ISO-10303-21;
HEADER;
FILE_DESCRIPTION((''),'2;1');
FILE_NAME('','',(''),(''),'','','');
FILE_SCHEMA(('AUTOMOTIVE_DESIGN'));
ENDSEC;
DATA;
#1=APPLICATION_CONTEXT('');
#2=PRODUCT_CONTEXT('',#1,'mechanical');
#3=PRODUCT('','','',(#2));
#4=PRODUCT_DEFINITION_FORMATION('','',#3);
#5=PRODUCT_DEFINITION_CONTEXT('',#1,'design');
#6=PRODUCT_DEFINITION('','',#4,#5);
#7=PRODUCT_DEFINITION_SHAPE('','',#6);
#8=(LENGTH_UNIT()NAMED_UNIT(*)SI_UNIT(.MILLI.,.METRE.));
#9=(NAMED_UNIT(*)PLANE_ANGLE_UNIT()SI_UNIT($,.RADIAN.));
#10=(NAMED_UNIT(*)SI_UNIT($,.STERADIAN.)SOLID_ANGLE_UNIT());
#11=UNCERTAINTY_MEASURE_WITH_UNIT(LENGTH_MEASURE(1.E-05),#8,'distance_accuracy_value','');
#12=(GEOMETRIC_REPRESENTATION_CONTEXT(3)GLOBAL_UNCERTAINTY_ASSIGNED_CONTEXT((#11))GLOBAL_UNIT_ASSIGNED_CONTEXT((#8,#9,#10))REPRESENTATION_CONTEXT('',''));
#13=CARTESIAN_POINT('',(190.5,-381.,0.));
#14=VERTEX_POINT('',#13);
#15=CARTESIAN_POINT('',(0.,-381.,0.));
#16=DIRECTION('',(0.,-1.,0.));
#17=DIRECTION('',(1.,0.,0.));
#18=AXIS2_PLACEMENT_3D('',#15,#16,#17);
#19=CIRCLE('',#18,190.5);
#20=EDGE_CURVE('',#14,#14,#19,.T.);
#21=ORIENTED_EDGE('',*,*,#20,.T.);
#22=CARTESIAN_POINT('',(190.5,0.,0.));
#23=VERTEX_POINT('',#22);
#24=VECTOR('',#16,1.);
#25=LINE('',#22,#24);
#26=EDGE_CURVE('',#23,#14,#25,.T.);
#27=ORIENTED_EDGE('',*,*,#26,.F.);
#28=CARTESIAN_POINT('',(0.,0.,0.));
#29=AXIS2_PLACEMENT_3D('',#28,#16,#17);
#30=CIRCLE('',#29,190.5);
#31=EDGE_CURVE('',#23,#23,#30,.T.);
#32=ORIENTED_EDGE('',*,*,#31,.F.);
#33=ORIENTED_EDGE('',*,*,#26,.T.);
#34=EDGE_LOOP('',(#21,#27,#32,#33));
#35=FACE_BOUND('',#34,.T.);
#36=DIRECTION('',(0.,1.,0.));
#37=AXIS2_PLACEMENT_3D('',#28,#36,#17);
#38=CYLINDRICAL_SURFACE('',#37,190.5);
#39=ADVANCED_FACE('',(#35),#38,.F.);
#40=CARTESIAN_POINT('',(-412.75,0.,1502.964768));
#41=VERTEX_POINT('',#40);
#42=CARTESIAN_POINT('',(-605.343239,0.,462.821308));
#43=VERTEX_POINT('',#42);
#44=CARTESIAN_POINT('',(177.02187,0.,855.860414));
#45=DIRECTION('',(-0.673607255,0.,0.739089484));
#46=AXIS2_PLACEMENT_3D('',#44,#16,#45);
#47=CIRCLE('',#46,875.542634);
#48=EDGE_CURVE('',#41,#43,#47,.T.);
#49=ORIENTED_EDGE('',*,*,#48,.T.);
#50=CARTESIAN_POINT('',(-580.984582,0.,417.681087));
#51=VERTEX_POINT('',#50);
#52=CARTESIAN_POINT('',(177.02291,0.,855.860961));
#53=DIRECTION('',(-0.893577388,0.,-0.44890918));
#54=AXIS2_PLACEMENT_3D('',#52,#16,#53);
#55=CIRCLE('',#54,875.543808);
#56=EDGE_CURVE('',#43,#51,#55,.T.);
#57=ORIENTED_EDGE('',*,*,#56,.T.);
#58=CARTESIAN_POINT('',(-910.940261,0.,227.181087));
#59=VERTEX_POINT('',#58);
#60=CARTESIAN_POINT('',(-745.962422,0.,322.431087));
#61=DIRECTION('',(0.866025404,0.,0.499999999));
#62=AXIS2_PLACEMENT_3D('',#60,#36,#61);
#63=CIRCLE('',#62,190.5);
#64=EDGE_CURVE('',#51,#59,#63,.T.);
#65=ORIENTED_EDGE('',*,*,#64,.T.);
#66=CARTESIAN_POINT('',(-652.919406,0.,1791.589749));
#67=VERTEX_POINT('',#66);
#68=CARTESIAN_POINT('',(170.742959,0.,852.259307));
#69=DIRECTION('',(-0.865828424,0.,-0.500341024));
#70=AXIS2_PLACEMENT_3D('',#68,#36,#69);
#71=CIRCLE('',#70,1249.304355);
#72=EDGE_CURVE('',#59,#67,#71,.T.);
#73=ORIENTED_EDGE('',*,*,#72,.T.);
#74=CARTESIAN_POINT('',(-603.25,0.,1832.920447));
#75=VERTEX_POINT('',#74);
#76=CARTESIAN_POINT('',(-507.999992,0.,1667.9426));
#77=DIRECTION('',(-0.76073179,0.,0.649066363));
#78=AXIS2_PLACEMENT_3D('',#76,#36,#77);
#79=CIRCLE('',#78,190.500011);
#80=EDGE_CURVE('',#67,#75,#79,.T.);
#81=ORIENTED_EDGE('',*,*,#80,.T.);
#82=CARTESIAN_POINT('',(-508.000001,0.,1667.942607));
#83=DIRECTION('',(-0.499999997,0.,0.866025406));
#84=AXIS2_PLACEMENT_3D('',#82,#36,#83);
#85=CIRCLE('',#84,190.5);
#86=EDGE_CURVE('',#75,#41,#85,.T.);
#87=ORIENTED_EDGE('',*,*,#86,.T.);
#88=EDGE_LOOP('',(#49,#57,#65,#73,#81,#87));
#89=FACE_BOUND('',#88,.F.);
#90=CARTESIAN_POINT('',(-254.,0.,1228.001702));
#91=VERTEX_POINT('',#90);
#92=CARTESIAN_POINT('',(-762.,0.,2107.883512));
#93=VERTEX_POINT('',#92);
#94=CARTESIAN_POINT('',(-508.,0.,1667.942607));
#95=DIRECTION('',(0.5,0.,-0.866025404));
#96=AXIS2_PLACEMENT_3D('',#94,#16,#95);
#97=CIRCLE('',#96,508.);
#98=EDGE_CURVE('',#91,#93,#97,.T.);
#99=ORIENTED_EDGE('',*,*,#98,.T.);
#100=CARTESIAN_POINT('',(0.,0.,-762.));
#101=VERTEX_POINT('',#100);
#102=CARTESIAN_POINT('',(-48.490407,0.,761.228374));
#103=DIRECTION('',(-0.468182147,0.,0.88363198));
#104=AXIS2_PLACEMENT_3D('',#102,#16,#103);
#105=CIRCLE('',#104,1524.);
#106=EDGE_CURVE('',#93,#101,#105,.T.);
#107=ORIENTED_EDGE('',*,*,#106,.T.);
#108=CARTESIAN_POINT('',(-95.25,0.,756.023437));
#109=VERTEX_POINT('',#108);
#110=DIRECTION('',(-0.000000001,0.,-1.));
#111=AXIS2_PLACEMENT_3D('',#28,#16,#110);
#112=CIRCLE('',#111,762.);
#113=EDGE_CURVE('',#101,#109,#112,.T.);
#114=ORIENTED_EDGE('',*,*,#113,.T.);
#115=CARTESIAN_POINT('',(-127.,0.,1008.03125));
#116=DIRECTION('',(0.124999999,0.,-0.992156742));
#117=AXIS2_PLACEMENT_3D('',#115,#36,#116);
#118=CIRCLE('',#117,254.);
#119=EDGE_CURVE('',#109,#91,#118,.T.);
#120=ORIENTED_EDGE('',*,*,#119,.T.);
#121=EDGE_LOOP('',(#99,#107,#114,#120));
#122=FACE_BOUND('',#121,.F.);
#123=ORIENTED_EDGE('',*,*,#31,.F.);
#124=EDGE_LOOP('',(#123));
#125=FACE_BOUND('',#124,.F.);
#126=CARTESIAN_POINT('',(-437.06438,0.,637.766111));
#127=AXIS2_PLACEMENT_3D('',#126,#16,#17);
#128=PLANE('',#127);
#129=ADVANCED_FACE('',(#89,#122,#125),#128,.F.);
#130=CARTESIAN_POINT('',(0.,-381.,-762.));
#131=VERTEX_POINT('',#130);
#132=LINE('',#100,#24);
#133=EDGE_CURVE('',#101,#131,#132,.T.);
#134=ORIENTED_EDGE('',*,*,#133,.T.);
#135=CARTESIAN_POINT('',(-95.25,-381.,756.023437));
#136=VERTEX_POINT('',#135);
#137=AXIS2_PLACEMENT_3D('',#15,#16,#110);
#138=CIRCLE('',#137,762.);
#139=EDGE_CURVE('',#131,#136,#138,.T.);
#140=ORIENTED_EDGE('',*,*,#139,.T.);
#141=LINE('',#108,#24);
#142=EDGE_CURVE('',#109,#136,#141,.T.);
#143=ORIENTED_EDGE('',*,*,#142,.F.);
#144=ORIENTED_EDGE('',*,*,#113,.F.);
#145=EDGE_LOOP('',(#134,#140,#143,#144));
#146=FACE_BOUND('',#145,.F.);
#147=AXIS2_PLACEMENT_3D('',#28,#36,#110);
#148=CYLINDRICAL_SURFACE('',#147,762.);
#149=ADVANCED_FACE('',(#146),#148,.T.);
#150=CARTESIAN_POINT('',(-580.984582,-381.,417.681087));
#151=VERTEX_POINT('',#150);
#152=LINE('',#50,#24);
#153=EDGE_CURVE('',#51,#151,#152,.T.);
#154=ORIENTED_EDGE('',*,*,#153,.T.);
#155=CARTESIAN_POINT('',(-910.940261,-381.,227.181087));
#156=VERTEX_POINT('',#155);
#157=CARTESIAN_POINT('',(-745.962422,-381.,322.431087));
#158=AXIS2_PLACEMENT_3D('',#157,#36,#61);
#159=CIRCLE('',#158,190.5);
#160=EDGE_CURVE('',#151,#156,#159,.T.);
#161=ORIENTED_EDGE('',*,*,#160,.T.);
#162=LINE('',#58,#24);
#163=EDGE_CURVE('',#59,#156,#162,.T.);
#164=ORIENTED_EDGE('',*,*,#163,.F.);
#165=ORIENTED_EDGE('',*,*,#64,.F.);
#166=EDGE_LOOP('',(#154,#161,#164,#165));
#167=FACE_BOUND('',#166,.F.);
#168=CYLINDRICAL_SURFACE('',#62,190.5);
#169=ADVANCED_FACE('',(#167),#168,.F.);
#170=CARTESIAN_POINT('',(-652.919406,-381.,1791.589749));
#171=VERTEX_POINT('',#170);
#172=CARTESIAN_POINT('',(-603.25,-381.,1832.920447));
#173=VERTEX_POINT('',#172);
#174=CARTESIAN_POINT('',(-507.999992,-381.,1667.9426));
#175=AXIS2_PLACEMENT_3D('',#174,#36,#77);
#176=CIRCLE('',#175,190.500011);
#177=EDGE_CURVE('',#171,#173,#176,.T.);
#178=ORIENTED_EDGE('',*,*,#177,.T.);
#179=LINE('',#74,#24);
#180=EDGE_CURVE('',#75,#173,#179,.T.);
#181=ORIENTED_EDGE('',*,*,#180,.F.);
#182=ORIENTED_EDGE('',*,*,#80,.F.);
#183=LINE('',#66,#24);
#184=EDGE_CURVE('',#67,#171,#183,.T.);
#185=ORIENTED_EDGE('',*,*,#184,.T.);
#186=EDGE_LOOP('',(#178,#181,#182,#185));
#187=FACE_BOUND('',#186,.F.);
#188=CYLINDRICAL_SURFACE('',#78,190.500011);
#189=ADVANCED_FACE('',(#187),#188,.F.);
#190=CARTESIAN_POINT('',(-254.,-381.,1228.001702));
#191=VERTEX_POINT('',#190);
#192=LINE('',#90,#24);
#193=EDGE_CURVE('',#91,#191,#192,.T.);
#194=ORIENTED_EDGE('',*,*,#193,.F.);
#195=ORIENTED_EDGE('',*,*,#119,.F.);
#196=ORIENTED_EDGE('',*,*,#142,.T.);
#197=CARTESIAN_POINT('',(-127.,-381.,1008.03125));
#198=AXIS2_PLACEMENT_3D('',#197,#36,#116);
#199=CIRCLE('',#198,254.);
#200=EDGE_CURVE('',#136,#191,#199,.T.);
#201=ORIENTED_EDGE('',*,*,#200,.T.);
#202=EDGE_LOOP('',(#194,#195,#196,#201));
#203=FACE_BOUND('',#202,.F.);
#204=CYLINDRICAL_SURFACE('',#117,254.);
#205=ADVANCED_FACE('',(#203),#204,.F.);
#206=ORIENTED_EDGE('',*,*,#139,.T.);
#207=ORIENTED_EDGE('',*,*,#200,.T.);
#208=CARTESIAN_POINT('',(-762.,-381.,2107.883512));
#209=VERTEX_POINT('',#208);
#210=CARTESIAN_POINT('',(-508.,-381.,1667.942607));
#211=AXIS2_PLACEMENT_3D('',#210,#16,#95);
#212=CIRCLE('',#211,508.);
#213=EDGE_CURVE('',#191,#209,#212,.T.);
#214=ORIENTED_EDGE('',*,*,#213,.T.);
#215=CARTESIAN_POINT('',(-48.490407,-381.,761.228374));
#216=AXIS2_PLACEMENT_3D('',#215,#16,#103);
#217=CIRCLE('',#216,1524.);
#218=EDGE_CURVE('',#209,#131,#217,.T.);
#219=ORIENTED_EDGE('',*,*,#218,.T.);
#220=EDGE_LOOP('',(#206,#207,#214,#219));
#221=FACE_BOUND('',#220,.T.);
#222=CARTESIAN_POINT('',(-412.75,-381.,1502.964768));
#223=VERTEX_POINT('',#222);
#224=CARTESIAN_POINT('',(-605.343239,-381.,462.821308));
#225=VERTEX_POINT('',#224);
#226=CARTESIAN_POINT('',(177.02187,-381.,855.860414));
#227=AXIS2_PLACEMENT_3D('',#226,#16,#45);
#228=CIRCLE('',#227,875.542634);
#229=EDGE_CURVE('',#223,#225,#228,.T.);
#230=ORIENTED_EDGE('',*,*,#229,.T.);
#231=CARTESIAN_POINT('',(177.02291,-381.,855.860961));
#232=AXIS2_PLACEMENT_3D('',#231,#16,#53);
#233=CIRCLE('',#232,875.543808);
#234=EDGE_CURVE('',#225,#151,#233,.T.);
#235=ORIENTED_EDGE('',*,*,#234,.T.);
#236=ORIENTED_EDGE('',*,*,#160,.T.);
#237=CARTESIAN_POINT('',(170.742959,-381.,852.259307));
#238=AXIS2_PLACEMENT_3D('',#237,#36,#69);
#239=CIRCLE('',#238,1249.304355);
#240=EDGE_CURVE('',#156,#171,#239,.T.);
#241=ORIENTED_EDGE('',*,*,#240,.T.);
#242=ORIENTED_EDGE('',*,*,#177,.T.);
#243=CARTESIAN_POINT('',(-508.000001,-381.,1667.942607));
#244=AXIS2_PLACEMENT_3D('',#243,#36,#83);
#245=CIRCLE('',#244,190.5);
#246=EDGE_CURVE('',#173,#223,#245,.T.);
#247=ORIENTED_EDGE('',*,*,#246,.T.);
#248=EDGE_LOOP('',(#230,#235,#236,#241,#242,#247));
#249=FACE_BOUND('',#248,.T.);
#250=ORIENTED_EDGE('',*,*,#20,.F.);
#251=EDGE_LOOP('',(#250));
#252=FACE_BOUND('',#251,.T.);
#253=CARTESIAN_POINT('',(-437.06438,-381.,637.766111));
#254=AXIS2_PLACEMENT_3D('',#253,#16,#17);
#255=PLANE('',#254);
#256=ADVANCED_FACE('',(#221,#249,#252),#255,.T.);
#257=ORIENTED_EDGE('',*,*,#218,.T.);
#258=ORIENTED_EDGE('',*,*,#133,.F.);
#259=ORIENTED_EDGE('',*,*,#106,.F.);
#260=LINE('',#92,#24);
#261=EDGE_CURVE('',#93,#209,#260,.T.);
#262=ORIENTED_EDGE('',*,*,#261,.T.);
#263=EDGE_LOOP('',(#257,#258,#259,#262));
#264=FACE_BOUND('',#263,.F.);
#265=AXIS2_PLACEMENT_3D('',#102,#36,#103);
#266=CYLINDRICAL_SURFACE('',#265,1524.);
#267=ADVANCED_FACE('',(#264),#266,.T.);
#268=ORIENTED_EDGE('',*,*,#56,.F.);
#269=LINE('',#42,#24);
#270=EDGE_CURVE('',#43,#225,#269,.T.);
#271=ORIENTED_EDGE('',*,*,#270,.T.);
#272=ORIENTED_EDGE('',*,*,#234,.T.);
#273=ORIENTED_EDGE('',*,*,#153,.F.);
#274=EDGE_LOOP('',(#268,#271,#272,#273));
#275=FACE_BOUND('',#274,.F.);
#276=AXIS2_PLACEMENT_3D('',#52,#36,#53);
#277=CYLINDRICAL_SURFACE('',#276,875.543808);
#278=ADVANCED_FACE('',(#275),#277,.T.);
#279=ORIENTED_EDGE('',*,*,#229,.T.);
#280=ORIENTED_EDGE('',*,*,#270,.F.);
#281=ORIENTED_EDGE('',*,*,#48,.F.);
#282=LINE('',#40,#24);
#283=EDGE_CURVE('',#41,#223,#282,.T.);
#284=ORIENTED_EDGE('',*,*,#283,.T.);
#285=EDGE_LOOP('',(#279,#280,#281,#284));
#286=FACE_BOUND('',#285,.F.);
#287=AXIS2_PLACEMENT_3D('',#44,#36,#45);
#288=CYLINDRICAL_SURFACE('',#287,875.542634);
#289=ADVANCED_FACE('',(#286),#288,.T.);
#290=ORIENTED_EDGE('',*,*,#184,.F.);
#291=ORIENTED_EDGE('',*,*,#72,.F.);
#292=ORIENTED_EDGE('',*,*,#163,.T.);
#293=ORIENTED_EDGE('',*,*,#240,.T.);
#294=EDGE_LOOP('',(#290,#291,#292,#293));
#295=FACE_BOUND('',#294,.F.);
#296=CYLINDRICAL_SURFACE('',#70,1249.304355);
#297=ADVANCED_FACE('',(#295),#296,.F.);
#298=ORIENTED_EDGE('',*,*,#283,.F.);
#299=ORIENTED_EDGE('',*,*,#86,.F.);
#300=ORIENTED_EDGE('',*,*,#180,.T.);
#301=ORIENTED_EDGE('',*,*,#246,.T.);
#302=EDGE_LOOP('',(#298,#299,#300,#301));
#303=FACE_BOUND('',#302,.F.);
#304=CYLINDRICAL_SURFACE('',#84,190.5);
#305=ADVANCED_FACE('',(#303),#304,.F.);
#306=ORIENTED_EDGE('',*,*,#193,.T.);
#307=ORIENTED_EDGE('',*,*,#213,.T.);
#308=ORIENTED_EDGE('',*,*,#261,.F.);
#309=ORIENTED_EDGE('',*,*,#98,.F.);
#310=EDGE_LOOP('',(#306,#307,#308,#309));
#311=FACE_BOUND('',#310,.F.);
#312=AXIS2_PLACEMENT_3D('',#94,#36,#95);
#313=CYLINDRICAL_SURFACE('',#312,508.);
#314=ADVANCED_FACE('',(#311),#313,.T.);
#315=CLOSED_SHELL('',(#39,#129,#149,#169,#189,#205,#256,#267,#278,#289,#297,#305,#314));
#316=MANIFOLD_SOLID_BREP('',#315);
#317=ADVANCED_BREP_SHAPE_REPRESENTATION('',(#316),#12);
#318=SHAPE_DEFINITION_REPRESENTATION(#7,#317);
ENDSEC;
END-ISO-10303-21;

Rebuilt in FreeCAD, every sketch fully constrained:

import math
import FreeCAD as App
import Part
import Sketcher
Q = App.Units.Quantity

doc = App.newDocument("Part")
body = doc.addObject("PartDesign::Body", "Body")

# Sketch on XZ plane
sketch1 = body.newObject("Sketcher::SketchObject", "Sketch")
sketch1.AttachmentSupport = (doc.getObject("XZ_Plane"), [""])
sketch1.MapMode = "FlatFace"
sketch1.addGeometry(Part.ArcOfCircle(Part.Circle(App.Vector(-48, 761, 0), App.Vector(0, 0, 1), 1524), math.radians(118), math.radians(272)), False)
sketch1.addGeometry(Part.ArcOfCircle(Part.Circle(App.Vector(0, 0, 0), App.Vector(0, 0, 1), 762), math.radians(-90), math.radians(97)), False)
sketch1.addGeometry(Part.ArcOfCircle(Part.Circle(App.Vector(-127, 1008, 0), App.Vector(0, 0, 1), 254), math.radians(120), math.radians(277)), False)
sketch1.addGeometry(Part.ArcOfCircle(Part.Circle(App.Vector(-508, 1668, 0), App.Vector(0, 0, 1), 508), math.radians(-60), math.radians(120)), False)
sketch1.addGeometry(Part.Circle(App.Vector(0, 0, 0), App.Vector(0, 0, 1), 190), False)
sketch1.addGeometry(Part.ArcOfCircle(Part.Circle(App.Vector(-508, 1668, 0), App.Vector(0, 0, 1), 191), math.radians(120), math.radians(139.53)), False)
sketch1.addGeometry(Part.ArcOfCircle(Part.Circle(App.Vector(-508, 1668, 0), App.Vector(0, 0, 1), 191), math.radians(-60), math.radians(120)), False)
sketch1.addGeometry(Part.ArcOfCircle(Part.Circle(App.Vector(177, 856, 0), App.Vector(0, 0, 1), 876), math.radians(132), math.radians(207)), False)
sketch1.addGeometry(Part.ArcOfCircle(Part.Circle(App.Vector(177, 856, 0), App.Vector(0, 0, 1), 876), math.radians(-153.33), math.radians(-149.97)), False)
sketch1.addGeometry(Part.ArcOfCircle(Part.Circle(App.Vector(-746, 322, 0), App.Vector(0, 0, 1), 191), math.radians(-150), math.radians(30)), False)
sketch1.addGeometry(Part.ArcOfCircle(Part.Circle(App.Vector(171, 852, 0), App.Vector(0, 0, 1), 1249), math.radians(131), math.radians(210)), False)
sketch1.addConstraint(Sketcher.Constraint("Coincident", 0, 2, 1, 1))
sketch1.addConstraint(Sketcher.Constraint("Tangent", 1, 2, 2, 2))
sketch1.addConstraint(Sketcher.Constraint("Tangent", 2, 1, 3, 1))
sketch1.addConstraint(Sketcher.Constraint("Coincident", 3, 2, 0, 1))
sketch1.addConstraint(Sketcher.Constraint("Tangent", 5, 1, 6, 2))
sketch1.addConstraint(Sketcher.Constraint("Coincident", 6, 1, 7, 1))
sketch1.addConstraint(Sketcher.Constraint("Coincident", 7, 2, 8, 1))
sketch1.addConstraint(Sketcher.Constraint("Coincident", 8, 2, 9, 2))
sketch1.addConstraint(Sketcher.Constraint("Coincident", 9, 1, 10, 2))
sketch1.addConstraint(Sketcher.Constraint("Coincident", 10, 1, 5, 2))
sketch1.addConstraint(Sketcher.Constraint("Coincident", 1, 3, -1, 1))
sketch1.addConstraint(Sketcher.Constraint("Coincident", 4, 3, -1, 1))
sketch1.addConstraint(Sketcher.Constraint("Coincident", 6, 3, 3, 3))
sketch1.addConstraint(Sketcher.Constraint("Equal", 4, 6))
sketch1.addConstraint(Sketcher.Constraint("Equal", 6, 9))
sketch1.addConstraint(Sketcher.Constraint("PointOnObject", 0, 2, -2))
sketch1.addConstraint(Sketcher.Constraint("Diameter", 4, Q("15 in")))
sketch1.addConstraint(Sketcher.Constraint("Radius", 0, Q("60 in")))
sketch1.addConstraint(Sketcher.Constraint("Radius", 1, Q("30 in")))
sketch1.addConstraint(Sketcher.Constraint("Radius", 2, Q("10 in")))
sketch1.addConstraint(Sketcher.Constraint("Radius", 3, Q("20 in")))
sketch1.addConstraint(Sketcher.Constraint("DistanceX", 2, 3, -1, 1, Q("5 in")))
sketch1.addConstraint(Sketcher.Constraint("DistanceX", 3, 3, -1, 1, Q("20 in")))
sketch1.addConstraint(Sketcher.Constraint("DistanceX", 3, 2, -1, 1, Q("30 in")))
sketch1.addConstraint(Sketcher.Constraint("DistanceX", 5, 1, 6, 1, Q("7.5 in")))
sketch1.addConstraint(Sketcher.Constraint("DistanceY", 9, 1, 8, 2, Q("7.5 in")))
sketch1.addConstraint(Sketcher.Constraint("DistanceX", 5, 1, -1, 1, Q("23.75 in")))
sketch1.addConstraint(Sketcher.Constraint("DistanceY", 9, 3, 8, 2, Q("3.75 in")))
sketch1.addConstraint(Sketcher.Constraint("Radius", 5, 190.500011))
sketch1.addConstraint(Sketcher.Constraint("Radius", 8, 875.543808))
sketch1.addConstraint(Sketcher.Constraint("Radius", 7, 875.542634))
sketch1.addConstraint(Sketcher.Constraint("Radius", 10, 1249.304355))
sketch1.addConstraint(Sketcher.Constraint("DistanceY", 10, 1, 5, 1, 41.330698))
sketch1.addConstraint(Sketcher.Constraint("DistanceX", -1, 1, 7, 3, 177.02187))
sketch1.addConstraint(Sketcher.Constraint("DistanceX", -1, 1, 8, 3, 177.02291))
sketch1.addConstraint(Sketcher.Constraint("DistanceX", 9, 3, -1, 1, 745.962422))
sketch1.addConstraint(Sketcher.Constraint("DistanceX", 7, 2, -1, 1, 605.343239))
pad1 = body.newObject("PartDesign::Pad", "Pad")
pad1.Profile = sketch1
pad1.Length = Q("15 in")

doc.recompute()
